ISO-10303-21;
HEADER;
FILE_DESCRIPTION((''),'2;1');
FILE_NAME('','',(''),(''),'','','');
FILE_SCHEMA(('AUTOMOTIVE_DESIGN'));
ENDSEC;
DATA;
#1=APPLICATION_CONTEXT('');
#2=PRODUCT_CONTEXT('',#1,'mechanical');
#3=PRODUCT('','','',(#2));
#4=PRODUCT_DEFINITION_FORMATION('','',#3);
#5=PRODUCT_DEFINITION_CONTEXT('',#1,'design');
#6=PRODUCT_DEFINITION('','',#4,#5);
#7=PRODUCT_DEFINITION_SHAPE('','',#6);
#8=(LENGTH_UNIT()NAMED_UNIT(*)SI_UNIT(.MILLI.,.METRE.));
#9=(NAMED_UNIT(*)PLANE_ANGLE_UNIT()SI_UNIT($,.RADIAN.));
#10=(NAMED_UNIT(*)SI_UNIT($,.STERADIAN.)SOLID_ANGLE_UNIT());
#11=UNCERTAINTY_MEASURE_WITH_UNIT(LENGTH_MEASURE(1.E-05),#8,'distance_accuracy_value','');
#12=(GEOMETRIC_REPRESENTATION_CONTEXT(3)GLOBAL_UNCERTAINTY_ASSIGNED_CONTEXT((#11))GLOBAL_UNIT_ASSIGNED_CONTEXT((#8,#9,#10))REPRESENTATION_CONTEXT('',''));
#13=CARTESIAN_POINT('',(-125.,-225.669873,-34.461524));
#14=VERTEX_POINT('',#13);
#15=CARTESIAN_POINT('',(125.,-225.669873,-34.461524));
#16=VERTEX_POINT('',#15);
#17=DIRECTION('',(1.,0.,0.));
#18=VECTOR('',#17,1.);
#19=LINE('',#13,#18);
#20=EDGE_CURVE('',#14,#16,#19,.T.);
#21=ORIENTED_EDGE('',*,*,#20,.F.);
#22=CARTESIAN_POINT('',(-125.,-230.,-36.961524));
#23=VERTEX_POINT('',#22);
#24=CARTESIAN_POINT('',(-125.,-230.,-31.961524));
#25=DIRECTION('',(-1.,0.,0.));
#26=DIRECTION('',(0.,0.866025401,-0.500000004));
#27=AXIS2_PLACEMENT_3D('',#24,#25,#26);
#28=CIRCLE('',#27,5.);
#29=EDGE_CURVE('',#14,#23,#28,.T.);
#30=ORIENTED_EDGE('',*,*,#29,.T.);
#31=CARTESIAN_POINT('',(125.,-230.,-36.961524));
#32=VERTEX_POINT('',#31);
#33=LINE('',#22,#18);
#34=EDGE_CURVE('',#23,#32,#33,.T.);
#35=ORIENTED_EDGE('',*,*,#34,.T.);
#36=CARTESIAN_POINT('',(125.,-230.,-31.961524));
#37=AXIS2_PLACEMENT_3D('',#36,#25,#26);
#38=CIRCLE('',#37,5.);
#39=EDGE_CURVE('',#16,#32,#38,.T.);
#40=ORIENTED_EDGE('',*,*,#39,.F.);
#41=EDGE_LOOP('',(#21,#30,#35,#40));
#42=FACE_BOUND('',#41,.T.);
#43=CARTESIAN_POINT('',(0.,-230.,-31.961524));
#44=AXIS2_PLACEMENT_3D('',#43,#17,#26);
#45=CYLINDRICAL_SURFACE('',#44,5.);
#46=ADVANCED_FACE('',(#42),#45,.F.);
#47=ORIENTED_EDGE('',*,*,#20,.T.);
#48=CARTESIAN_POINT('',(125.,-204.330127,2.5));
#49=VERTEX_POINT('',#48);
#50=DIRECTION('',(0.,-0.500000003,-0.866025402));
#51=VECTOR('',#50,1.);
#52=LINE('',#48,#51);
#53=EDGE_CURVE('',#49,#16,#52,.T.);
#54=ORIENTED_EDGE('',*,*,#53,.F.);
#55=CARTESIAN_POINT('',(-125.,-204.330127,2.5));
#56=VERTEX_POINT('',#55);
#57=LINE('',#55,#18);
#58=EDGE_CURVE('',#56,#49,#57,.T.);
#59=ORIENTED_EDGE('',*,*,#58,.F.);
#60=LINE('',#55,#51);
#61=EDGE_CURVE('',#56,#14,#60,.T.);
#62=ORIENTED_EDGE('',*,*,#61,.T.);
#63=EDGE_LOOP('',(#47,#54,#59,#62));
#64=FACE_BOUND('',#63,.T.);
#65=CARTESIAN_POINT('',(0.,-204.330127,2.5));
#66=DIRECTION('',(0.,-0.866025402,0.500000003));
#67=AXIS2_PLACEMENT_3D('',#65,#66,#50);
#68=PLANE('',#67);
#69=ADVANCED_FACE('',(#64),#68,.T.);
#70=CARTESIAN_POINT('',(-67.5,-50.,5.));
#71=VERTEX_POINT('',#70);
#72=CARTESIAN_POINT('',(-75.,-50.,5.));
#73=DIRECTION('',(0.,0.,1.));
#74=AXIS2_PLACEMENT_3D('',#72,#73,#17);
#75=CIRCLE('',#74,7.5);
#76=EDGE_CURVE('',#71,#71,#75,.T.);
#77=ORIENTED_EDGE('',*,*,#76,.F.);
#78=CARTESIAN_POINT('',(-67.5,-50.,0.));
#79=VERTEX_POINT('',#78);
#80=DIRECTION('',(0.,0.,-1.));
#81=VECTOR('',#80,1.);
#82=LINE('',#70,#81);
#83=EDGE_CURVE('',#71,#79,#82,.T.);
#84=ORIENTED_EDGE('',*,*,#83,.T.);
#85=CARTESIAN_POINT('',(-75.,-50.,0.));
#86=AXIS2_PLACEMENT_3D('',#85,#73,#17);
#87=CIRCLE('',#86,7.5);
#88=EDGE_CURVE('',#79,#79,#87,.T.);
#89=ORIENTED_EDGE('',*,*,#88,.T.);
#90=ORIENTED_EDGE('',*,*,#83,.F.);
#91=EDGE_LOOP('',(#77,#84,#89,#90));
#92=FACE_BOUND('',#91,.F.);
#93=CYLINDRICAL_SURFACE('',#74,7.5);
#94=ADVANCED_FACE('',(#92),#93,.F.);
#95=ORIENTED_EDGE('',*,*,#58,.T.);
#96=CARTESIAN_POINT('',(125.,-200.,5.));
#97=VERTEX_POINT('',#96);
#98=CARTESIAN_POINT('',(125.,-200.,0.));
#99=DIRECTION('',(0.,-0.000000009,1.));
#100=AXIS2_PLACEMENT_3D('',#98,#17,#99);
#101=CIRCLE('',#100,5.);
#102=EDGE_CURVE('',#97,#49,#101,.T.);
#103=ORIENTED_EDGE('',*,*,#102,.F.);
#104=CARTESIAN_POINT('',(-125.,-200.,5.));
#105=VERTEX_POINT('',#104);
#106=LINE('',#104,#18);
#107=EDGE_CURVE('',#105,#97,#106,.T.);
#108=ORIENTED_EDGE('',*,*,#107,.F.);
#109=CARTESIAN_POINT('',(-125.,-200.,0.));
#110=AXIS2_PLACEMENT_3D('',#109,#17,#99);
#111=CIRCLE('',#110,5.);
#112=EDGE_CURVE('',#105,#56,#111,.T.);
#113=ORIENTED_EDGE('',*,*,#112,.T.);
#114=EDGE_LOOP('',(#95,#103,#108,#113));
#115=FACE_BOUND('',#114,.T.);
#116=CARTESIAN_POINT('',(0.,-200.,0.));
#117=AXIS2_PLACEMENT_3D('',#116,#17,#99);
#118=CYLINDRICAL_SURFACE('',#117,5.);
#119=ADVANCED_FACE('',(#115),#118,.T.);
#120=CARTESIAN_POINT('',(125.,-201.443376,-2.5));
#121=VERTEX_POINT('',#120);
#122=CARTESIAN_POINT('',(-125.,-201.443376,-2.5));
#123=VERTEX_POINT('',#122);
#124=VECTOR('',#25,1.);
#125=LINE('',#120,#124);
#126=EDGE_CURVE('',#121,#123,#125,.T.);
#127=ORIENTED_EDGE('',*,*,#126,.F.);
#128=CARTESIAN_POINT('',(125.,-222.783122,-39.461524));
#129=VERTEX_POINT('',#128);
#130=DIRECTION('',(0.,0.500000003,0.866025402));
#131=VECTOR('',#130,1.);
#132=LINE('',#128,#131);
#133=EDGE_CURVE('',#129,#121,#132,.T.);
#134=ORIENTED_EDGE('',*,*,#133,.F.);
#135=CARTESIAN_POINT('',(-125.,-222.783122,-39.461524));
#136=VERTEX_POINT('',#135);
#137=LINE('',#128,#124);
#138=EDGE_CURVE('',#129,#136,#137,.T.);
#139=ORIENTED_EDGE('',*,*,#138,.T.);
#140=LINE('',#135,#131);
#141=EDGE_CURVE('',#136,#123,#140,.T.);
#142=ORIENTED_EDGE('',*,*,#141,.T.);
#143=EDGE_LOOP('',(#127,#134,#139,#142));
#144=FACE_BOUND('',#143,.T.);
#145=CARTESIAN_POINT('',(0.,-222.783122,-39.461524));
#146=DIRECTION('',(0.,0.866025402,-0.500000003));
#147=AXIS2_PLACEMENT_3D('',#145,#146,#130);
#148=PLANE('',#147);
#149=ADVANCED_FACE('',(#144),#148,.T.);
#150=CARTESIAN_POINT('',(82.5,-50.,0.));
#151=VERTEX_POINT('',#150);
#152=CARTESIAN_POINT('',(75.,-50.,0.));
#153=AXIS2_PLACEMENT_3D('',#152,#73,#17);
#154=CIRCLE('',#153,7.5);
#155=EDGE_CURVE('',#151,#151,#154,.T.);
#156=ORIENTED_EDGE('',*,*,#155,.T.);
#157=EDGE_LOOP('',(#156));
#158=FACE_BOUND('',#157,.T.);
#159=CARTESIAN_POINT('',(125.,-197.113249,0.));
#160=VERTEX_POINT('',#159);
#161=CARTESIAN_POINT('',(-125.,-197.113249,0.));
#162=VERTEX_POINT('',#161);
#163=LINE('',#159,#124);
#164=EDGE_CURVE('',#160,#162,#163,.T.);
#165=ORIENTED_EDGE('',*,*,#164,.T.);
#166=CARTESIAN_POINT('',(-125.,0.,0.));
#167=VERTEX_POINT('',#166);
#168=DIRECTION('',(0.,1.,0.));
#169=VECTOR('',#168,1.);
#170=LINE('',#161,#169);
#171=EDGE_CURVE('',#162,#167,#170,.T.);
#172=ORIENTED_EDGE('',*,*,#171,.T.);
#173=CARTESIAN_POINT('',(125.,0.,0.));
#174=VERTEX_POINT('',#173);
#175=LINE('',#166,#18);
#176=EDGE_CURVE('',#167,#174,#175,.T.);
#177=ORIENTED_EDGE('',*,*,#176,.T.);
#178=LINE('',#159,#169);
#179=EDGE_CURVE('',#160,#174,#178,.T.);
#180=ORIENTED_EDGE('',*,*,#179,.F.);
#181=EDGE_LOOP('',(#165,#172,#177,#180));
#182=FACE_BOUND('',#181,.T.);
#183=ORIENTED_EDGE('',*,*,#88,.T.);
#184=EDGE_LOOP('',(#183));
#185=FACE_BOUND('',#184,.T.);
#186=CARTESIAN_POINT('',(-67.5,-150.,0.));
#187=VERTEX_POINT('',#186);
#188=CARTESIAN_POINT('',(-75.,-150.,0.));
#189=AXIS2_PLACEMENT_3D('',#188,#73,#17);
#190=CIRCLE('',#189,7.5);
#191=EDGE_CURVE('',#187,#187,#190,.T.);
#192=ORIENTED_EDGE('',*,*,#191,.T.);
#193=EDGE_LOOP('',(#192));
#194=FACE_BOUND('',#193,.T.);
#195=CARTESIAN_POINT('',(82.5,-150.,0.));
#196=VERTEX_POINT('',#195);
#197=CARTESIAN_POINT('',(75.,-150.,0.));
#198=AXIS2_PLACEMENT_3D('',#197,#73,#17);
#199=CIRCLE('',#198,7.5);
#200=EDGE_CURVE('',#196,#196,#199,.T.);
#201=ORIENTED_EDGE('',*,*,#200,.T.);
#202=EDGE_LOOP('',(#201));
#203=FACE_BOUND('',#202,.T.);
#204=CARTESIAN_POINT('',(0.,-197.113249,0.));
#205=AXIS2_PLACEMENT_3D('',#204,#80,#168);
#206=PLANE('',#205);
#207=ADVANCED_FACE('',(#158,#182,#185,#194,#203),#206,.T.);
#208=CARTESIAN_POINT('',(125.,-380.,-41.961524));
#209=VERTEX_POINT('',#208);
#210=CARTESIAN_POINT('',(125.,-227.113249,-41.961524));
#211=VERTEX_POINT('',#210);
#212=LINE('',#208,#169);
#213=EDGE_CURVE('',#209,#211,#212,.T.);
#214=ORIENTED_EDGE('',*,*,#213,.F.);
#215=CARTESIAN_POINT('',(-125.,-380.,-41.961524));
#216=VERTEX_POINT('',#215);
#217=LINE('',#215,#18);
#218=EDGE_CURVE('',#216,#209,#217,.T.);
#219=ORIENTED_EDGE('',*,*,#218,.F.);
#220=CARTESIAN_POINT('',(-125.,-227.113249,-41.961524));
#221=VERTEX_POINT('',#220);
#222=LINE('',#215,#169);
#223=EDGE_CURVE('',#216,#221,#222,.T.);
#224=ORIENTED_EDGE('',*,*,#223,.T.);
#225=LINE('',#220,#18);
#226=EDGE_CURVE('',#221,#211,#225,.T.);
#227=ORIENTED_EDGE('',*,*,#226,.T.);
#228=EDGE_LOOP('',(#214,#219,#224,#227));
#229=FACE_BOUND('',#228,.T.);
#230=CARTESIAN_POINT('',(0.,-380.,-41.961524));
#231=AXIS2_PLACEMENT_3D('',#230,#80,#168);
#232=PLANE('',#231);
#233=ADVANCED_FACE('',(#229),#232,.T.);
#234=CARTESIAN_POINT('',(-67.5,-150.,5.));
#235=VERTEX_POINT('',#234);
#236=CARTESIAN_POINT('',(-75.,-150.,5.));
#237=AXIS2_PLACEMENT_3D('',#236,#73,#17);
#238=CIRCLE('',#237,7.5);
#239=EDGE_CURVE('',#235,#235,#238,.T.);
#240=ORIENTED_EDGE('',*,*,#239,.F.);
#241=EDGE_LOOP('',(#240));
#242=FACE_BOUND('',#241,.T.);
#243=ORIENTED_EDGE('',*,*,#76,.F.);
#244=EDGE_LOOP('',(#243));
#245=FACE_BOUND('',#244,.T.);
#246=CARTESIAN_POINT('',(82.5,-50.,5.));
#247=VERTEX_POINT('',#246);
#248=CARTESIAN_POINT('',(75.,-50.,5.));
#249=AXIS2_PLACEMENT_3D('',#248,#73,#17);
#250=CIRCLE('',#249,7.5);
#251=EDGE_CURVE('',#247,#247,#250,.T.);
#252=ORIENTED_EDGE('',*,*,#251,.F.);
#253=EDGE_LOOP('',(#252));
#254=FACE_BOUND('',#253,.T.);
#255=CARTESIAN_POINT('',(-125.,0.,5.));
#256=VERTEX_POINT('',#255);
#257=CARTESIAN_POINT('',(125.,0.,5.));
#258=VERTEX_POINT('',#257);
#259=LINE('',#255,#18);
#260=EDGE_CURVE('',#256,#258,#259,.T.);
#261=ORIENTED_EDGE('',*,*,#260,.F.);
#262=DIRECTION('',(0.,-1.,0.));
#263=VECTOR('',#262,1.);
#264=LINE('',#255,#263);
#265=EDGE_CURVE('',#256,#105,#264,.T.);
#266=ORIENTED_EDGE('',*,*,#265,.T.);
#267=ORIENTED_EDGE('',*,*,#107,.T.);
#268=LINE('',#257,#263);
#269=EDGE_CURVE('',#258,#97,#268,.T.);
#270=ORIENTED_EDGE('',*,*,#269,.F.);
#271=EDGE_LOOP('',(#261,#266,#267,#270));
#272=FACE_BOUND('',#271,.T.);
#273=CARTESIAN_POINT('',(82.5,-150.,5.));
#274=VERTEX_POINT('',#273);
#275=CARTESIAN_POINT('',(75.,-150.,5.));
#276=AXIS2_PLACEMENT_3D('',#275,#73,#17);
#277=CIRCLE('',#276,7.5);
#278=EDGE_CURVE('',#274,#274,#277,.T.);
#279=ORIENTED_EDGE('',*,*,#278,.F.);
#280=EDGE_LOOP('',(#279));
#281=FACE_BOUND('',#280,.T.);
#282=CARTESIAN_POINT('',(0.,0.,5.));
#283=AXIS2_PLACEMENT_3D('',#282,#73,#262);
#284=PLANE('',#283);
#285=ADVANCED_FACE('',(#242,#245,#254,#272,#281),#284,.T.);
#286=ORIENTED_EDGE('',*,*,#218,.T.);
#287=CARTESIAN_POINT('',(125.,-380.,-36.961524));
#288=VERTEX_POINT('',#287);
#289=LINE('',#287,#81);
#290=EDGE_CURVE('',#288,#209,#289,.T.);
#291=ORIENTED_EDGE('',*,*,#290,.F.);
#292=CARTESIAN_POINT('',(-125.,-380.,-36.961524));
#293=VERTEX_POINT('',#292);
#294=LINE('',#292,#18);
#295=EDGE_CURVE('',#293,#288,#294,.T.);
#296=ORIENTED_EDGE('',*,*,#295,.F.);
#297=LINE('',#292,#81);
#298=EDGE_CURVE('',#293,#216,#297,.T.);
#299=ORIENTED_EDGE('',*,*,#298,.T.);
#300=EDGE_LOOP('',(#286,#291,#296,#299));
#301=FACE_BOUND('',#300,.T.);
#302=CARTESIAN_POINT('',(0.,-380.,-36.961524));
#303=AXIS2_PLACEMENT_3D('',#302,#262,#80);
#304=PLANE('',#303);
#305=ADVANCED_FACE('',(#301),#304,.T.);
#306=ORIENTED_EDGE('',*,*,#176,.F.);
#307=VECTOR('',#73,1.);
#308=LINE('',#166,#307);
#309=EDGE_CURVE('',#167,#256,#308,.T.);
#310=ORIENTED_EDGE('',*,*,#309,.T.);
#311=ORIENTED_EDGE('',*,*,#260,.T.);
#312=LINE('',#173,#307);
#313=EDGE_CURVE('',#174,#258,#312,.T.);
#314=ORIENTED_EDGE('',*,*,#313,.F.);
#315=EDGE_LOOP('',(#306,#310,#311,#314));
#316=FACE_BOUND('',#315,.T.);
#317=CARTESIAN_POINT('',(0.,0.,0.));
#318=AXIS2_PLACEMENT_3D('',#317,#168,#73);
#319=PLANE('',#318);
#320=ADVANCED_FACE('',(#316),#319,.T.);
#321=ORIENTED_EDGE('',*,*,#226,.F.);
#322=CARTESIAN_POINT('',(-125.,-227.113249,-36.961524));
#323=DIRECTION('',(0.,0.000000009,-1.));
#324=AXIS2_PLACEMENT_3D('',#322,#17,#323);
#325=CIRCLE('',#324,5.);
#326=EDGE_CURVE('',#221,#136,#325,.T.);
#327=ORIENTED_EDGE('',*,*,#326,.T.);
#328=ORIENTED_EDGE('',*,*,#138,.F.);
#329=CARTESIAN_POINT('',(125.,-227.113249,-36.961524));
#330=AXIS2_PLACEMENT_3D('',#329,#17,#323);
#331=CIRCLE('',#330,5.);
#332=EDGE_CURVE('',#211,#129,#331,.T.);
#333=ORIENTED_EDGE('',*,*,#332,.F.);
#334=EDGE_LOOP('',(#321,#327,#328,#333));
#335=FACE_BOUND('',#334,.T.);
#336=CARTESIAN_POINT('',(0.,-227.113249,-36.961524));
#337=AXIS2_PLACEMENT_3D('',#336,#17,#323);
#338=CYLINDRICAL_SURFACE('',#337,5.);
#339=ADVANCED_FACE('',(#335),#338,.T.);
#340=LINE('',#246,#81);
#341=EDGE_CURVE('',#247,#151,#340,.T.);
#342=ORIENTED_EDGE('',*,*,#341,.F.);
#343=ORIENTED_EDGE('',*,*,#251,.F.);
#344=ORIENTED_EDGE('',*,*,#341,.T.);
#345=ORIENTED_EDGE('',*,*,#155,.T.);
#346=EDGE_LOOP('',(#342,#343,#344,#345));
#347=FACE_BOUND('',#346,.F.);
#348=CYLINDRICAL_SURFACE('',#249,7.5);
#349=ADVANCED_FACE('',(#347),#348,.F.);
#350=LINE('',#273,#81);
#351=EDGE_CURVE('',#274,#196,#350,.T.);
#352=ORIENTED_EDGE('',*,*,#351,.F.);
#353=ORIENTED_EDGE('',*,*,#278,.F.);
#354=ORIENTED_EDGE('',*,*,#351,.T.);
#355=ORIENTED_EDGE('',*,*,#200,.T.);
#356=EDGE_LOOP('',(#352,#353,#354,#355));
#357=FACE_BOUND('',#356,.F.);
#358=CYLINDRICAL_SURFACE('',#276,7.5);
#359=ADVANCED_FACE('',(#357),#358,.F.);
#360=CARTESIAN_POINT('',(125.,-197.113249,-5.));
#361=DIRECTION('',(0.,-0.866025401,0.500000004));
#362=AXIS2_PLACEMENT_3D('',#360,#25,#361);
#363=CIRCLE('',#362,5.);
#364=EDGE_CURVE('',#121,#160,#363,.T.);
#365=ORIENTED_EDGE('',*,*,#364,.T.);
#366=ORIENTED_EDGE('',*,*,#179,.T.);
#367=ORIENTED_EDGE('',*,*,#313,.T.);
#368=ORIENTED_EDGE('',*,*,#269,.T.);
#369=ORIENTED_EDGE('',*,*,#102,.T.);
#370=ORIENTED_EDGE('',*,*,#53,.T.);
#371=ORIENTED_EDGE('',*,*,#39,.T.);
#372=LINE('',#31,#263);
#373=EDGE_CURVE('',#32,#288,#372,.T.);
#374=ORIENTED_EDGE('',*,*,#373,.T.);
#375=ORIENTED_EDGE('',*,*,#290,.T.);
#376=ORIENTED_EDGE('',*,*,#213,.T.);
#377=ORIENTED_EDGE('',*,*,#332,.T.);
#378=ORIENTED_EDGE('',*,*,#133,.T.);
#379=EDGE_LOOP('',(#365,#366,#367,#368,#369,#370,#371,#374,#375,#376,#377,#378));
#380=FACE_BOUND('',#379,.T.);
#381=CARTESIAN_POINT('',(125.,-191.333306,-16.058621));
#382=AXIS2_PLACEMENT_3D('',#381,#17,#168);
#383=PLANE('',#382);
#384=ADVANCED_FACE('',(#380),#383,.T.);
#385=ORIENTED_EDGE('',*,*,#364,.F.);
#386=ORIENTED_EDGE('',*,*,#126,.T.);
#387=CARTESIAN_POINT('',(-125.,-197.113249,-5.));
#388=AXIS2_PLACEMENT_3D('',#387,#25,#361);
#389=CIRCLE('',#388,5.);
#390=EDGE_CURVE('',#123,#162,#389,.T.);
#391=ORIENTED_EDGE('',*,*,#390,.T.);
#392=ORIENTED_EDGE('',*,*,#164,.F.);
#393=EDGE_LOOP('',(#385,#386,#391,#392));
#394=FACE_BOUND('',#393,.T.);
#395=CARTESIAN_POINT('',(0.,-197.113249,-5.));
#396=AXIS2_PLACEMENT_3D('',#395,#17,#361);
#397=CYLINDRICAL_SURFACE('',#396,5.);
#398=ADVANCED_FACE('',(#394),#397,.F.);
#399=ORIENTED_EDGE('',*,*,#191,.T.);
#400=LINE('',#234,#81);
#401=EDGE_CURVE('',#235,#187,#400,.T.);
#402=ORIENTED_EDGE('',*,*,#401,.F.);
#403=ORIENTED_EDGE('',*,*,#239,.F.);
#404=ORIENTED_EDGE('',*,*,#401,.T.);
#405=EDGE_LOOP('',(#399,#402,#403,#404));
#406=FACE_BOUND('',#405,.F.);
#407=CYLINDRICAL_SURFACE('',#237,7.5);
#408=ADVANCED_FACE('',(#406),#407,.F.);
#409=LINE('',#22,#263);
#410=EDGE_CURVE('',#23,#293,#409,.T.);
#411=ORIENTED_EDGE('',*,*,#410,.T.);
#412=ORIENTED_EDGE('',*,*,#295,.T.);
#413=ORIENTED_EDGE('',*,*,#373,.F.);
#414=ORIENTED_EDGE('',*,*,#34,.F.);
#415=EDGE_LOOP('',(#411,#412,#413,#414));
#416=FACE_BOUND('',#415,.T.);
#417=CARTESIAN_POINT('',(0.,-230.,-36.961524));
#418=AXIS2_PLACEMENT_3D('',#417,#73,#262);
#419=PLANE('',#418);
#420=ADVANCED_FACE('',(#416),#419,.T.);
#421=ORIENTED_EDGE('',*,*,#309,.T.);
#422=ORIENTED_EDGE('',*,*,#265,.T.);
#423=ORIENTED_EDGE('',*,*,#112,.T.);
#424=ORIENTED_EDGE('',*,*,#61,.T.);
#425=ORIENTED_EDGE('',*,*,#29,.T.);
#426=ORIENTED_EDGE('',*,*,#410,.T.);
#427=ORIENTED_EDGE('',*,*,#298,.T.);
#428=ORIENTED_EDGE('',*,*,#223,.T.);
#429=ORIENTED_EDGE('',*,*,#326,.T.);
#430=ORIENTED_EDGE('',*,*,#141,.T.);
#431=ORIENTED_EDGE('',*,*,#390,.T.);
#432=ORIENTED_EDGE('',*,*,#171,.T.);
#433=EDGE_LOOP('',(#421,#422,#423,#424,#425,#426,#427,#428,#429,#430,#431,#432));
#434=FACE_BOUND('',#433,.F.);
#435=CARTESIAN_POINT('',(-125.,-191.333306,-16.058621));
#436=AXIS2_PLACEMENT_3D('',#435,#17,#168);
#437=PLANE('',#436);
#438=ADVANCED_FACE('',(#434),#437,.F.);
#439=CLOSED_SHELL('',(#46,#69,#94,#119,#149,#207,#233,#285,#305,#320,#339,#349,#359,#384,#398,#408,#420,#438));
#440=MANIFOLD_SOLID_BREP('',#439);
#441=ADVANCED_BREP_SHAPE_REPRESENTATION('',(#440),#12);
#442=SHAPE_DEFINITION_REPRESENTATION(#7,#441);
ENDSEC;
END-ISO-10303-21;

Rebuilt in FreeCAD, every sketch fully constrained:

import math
import FreeCAD as App
import Part
import Sketcher
from FreeCAD import Vector
Q = App.Units.Quantity

doc = App.newDocument("Part")
body = doc.addObject("PartDesign::Body", "Body")

# Sketch on YZ plane
sketch1 = body.newObject("Sketcher::SketchObject", "Sketch")
sketch1.AttachmentSupport = (doc.getObject("YZ_Plane"), [""])
sketch1.MapMode = "FlatFace"
sketch1.addGeometry(Part.LineSegment(Vector(-197.1, 0, 0), Vector(0, 0, 0)), False)
sketch1.addGeometry(Part.LineSegment(Vector(0, 0, 0), Vector(0, 5, 0)), False)
sketch1.addGeometry(Part.LineSegment(Vector(0, 5, 0), Vector(-200, 5, 0)), False)
sketch1.addGeometry(Part.ArcOfCircle(Part.Circle(Vector(-200, 0, 0), Vector(0, 0, 1), 5), math.radians(90), math.radians(150)), False)
sketch1.addGeometry(Part.LineSegment(Vector(-204.3, 2.5, 0), Vector(-225.7, -34.5, 0)), False)
sketch1.addGeometry(Part.ArcOfCircle(Part.Circle(Vector(-230, -32, 0), Vector(0, 0, 1), 5), math.radians(-90), math.radians(-30)), False)
sketch1.addGeometry(Part.LineSegment(Vector(-230, -37, 0), Vector(-380, -37, 0)), False)
sketch1.addGeometry(Part.LineSegment(Vector(-380, -37, 0), Vector(-380, -42, 0)), False)
sketch1.addGeometry(Part.LineSegment(Vector(-380, -42, 0), Vector(-227.1, -42, 0)), False)
sketch1.addGeometry(Part.ArcOfCircle(Part.Circle(Vector(-227.1, -37, 0), Vector(0, 0, 1), 5), math.radians(-90), math.radians(-30)), False)
sketch1.addGeometry(Part.LineSegment(Vector(-222.8, -39.5, 0), Vector(-201.4, -2.5, 0)), False)
sketch1.addGeometry(Part.ArcOfCircle(Part.Circle(Vector(-197.1, -5, 0), Vector(0, 0, 1), 5), math.radians(90), math.radians(150)), False)
sketch1.addConstraint(Sketcher.Constraint("Coincident", 0, 2, 1, 1))
sketch1.addConstraint(Sketcher.Constraint("Coincident", 1, 2, 2, 1))
sketch1.addConstraint(Sketcher.Constraint("Tangent", 2, 2, 3, 1))
sketch1.addConstraint(Sketcher.Constraint("Tangent", 3, 2, 4, 1))
sketch1.addConstraint(Sketcher.Constraint("Tangent", 4, 2, 5, 2))
sketch1.addConstraint(Sketcher.Constraint("Tangent", 5, 1, 6, 1))
sketch1.addConstraint(Sketcher.Constraint("Coincident", 6, 2, 7, 1))
sketch1.addConstraint(Sketcher.Constraint("Coincident", 7, 2, 8, 1))
sketch1.addConstraint(Sketcher.Constraint("Tangent", 8, 2, 9, 1))
sketch1.addConstraint(Sketcher.Constraint("Tangent", 9, 2, 10, 1))
sketch1.addConstraint(Sketcher.Constraint("Tangent", 10, 2, 11, 2))
sketch1.addConstraint(Sketcher.Constraint("Tangent", 11, 1, 0, 1))
sketch1.addConstraint(Sketcher.Constraint("Horizontal", 0))
sketch1.addConstraint(Sketcher.Constraint("Vertical", 1))
sketch1.addConstraint(Sketcher.Constraint("Horizontal", 2))
sketch1.addConstraint(Sketcher.Constraint("Horizontal", 6))
sketch1.addConstraint(Sketcher.Constraint("Vertical", 7))
sketch1.addConstraint(Sketcher.Constraint("Horizontal", 8))
sketch1.addConstraint(Sketcher.Constraint("Coincident", 0, 2, -1, 1))
sketch1.addConstraint(Sketcher.Constraint("Equal", 3, 5))
sketch1.addConstraint(Sketcher.Constraint("Equal", 5, 9))
sketch1.addConstraint(Sketcher.Constraint("Equal", 9, 11))
sketch1.addConstraint(Sketcher.Constraint("PointOnObject", 3, 3, -1))
sketch1.addConstraint(Sketcher.Constraint("Parallel", 4, 10))
sketch1.addConstraint(Sketcher.Constraint("Horizontal", 9, 3, 5, 1))
sketch1.addConstraint(Sketcher.Constraint("Radius", 3, 5.0))
sketch1.addConstraint(Sketcher.Constraint("DistanceX", 2, 2, 2, 1, 200.0))
sketch1.addConstraint(Sketcher.Constraint("DistanceX", 6, 2, 6, 1, 150.0))
sketch1.addConstraint(Sketcher.Constraint("Angle", 4, Q("-120 deg")))
sketch1.addConstraint(Sketcher.Constraint("DistanceX", 5, 3, -1, 1, 230.0))
sketch1.addConstraint(Sketcher.Constraint("DistanceX", 0, 1, 0, 2, 197.113249))
pad1 = body.newObject("PartDesign::Pad", "Pad")
pad1.Profile = sketch1
pad1.Length = 250
pad1.Midplane = True

# Sketch on XY plane
sketch2 = body.newObject("Sketcher::SketchObject", "Sketch001")
sketch2.AttachmentSupport = (doc.getObject("XY_Plane"), [""])
sketch2.MapMode = "FlatFace"
sketch2.AttachmentOffset = App.Placement(Vector(0, 0, 5), App.Rotation())
sketch2.addGeometry(Part.Circle(Vector(-75, -150, 0), Vector(0, 0, 1), 8), False)
sketch2.addGeometry(Part.Circle(Vector(75, -150, 0), Vector(0, 0, 1), 8), False)
sketch2.addGeometry(Part.Circle(Vector(75, -50, 0), Vector(0, 0, 1), 8), False)
sketch2.addGeometry(Part.Circle(Vector(-75, -50, 0), Vector(0, 0, 1), 8), False)
sketch2.addConstraint(Sketcher.Constraint("Equal", 0, 1))
sketch2.addConstraint(Sketcher.Constraint("Equal", 1, 2))
sketch2.addConstraint(Sketcher.Constraint("Equal", 2, 3))
sketch2.addConstraint(Sketcher.Constraint("Symmetric", 0, 3, 1, 3, -2))
sketch2.addConstraint(Sketcher.Constraint("Symmetric", 2, 3, 3, 3, -2))
sketch2.addConstraint(Sketcher.Constraint("Vertical", 1, 3, 2, 3))
sketch2.addConstraint(Sketcher.Constraint("Diameter", 0, 15.0))
sketch2.addConstraint(Sketcher.Constraint("DistanceX", 0, 3, -1, 1, 75.0))
sketch2.addConstraint(Sketcher.Constraint("DistanceY", 0, 3, -1, 1, 150.0))
sketch2.addConstraint(Sketcher.Constraint("DistanceY", 2, 3, -1, 1, 50.0))
pocket1 = body.newObject("PartDesign::Pocket", "Pocket")
pocket1.Profile = sketch2
pocket1.Type = "ThroughAll"

doc.recompute()
